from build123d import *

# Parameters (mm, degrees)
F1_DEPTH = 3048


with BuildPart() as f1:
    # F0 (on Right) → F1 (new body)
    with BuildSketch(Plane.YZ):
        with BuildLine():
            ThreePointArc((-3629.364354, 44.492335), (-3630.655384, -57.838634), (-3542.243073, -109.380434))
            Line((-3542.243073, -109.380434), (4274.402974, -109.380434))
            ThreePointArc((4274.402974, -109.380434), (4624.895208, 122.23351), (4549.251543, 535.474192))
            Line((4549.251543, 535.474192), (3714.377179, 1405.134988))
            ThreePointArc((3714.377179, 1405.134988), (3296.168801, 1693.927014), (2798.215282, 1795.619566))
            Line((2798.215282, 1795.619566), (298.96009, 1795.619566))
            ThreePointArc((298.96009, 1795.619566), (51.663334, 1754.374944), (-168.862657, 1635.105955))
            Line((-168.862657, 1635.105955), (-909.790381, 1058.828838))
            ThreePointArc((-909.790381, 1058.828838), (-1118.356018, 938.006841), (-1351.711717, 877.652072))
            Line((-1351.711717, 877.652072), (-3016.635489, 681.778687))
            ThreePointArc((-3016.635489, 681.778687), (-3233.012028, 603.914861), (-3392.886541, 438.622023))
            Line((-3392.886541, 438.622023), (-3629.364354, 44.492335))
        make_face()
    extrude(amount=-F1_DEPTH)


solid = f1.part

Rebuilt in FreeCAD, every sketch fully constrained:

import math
import FreeCAD as App
import Part
import Sketcher

V = App.Vector
Q = App.Units.Quantity

doc = App.newDocument("Part")
params = doc.addObject("Spreadsheet::Sheet", "Params")
for row, (alias, value) in enumerate([
    ("sketch1_radius", "4 in"),
    ("sketch1_radius2", "15 in"),
    ("sketch1_radius3", "49.9999999 in"),
    ("sketch1_radius4", "19.9999998 in"),
    ("pad1_length", "120 in"),
], start=1):
    params.set(f"A{row}", alias)
    params.set(f"B{row}", "=" + value)
    params.setAlias(f"B{row}", alias)

body = doc.addObject("PartDesign::Body", "Body")

sketch1 = body.newObject("Sketcher::SketchObject", "Sketch")
sketch1.AttachmentSupport = (doc.getObject("YZ_Plane"), [""])
sketch1.MapMode = "FlatFace"
sketch1.addGeometry([
    Part.ArcOfCircle(Part.Circle(V(-3542.243074, -7.780435, 0), V(0, 0, 1), 101.599999), math.radians(149.036243), math.radians(270.000001)),
    Part.LineSegment(V(-3542.243073, -109.380434, 0), V(4274.402974, -109.380434, 0)),
    Part.ArcOfCircle(Part.Circle(V(4274.402974, 271.619566, 0), V(0, 0, 1), 381), math.radians(-90), math.radians(43.830861)),
    Part.LineSegment(V(4549.251543, 535.474192, 0), V(3714.377179, 1405.134988, 0)),
    Part.ArcOfCircle(Part.Circle(V(2798.215283, 525.619569, 0), V(0, 0, 1), 1269.999997), math.radians(43.830861), math.radians(90)),
    Part.LineSegment(V(2798.215282, 1795.619566, 0), V(298.96009, 1795.619566, 0)),
    Part.ArcOfCircle(Part.Circle(V(298.960087, 1033.619579, 0), V(0, 0, 1), 761.999987), math.radians(90), math.radians(127.874984)),
    Part.LineSegment(V(-168.862657, 1635.105955, 0), V(-909.790381, 1058.828838, 0)),
    Part.ArcOfCircle(Part.Circle(V(-1455.583583, 1760.562952, 0), V(0, 0, 1), 888.999992), math.radians(-83.290163), math.radians(-52.125016)),
    Part.LineSegment(V(-1351.711717, 877.652072, 0), V(-3016.635489, 681.778687, 0)),
    Part.ArcOfCircle(Part.Circle(V(-2957.280137, 177.258185, 0), V(0, 0, 1), 507.999995), math.radians(96.709837), math.radians(149.036244)),
    Part.LineSegment(V(-3392.886541, 438.622023, 0), V(-3629.364354, 44.492335, 0)),
], False)
sketch1.addConstraint([
    Sketcher.Constraint("Coincident", 0, 2, 1, 1),
    Sketcher.Constraint("Coincident", 1, 2, 2, 1),
    Sketcher.Constraint("Coincident", 2, 2, 3, 1),
    Sketcher.Constraint("Coincident", 3, 2, 4, 1),
    Sketcher.Constraint("Coincident", 4, 2, 5, 1),
    Sketcher.Constraint("Coincident", 5, 2, 6, 1),
    Sketcher.Constraint("Coincident", 6, 2, 7, 1),
    Sketcher.Constraint("Coincident", 7, 2, 8, 2),
    Sketcher.Constraint("Coincident", 8, 1, 9, 1),
    Sketcher.Constraint("Coincident", 9, 2, 10, 1),
    Sketcher.Constraint("Coincident", 10, 2, 11, 1),
    Sketcher.Constraint("Coincident", 11, 2, 0, 1),
    Sketcher.Constraint("Horizontal", 1),
    Sketcher.Constraint("Horizontal", 5),
    Sketcher.Constraint("Radius", 0, Q("4 in")),
    Sketcher.Constraint("Radius", 2, Q("15 in")),
    Sketcher.Constraint("Radius", 4, Q("49.9999999 in")),
    Sketcher.Constraint("Radius", 10, Q("19.9999998 in")),
    Sketcher.Constraint("DistanceY", 2, 3, 4, 3, Q("10.0000001 in")),
    Sketcher.Constraint("Radius", 6, 761.999987),
    Sketcher.Constraint("Radius", 8, 888.999992),
    Sketcher.Constraint("DistanceY", 0, 3, 10, 2, Q("17.5748999 in")),
    Sketcher.Constraint("Distance", 3, 1205.539341),
    Sketcher.Constraint("Distance", 7, 938.652869),
    Sketcher.Constraint("Distance", 9, 1676.406141),
    Sketcher.Constraint("Distance", 11, 459.63025),
    Sketcher.Constraint("DistanceX", 1, 1, 1, 2, 7816.646047),
    Sketcher.Constraint("DistanceX", 5, 2, 5, 1, 2499.255192),
    Sketcher.Constraint("DistanceY", -1, 1, 4, 3, 525.619569),
    Sketcher.Constraint("DistanceY", -1, 1, 8, 3, 1760.562952),
    Sketcher.Constraint("DistanceX", -1, 1, 3, 2, 3714.377179),
    Sketcher.Constraint("DistanceY", -1, 1, 3, 2, 1405.134988),
    Sketcher.Constraint("DistanceX", -1, 1, 5, 2, 298.96009),
    Sketcher.Constraint("DistanceX", 7, 2, -1, 1, 909.790381),
    Sketcher.Constraint("DistanceY", -1, 1, 7, 2, 1058.828838),
    Sketcher.Constraint("DistanceX", 9, 2, -1, 1, 3016.635489),
    Sketcher.Constraint("DistanceX", 10, 2, -1, 1, 3392.886541),
    Sketcher.Constraint("DistanceX", 0, 3, 2, 3, 7816.646048),
    Sketcher.Constraint("DistanceX", 4, 3, 2, 3, 1476.187691),
    Sketcher.Constraint("DistanceX", 0, 3, 6, 3, 3841.203161),
    Sketcher.Constraint("DistanceY", 0, 3, 10, 3, 185.03862),
    Sketcher.Constraint("DistanceX", 0, 2, 8, 3, 2086.65949),
])
sketch1.setExpression("Constraints[14]", "Params.sketch1_radius")
sketch1.setExpression("Constraints[15]", "Params.sketch1_radius2")
sketch1.setExpression("Constraints[16]", "Params.sketch1_radius3")
sketch1.setExpression("Constraints[17]", "Params.sketch1_radius4")
pad1 = body.newObject("PartDesign::Pad", "Pad")
pad1.Profile = sketch1
pad1.setExpression("Length", "Params.pad1_length")
pad1.Reversed = True

doc.recompute()
